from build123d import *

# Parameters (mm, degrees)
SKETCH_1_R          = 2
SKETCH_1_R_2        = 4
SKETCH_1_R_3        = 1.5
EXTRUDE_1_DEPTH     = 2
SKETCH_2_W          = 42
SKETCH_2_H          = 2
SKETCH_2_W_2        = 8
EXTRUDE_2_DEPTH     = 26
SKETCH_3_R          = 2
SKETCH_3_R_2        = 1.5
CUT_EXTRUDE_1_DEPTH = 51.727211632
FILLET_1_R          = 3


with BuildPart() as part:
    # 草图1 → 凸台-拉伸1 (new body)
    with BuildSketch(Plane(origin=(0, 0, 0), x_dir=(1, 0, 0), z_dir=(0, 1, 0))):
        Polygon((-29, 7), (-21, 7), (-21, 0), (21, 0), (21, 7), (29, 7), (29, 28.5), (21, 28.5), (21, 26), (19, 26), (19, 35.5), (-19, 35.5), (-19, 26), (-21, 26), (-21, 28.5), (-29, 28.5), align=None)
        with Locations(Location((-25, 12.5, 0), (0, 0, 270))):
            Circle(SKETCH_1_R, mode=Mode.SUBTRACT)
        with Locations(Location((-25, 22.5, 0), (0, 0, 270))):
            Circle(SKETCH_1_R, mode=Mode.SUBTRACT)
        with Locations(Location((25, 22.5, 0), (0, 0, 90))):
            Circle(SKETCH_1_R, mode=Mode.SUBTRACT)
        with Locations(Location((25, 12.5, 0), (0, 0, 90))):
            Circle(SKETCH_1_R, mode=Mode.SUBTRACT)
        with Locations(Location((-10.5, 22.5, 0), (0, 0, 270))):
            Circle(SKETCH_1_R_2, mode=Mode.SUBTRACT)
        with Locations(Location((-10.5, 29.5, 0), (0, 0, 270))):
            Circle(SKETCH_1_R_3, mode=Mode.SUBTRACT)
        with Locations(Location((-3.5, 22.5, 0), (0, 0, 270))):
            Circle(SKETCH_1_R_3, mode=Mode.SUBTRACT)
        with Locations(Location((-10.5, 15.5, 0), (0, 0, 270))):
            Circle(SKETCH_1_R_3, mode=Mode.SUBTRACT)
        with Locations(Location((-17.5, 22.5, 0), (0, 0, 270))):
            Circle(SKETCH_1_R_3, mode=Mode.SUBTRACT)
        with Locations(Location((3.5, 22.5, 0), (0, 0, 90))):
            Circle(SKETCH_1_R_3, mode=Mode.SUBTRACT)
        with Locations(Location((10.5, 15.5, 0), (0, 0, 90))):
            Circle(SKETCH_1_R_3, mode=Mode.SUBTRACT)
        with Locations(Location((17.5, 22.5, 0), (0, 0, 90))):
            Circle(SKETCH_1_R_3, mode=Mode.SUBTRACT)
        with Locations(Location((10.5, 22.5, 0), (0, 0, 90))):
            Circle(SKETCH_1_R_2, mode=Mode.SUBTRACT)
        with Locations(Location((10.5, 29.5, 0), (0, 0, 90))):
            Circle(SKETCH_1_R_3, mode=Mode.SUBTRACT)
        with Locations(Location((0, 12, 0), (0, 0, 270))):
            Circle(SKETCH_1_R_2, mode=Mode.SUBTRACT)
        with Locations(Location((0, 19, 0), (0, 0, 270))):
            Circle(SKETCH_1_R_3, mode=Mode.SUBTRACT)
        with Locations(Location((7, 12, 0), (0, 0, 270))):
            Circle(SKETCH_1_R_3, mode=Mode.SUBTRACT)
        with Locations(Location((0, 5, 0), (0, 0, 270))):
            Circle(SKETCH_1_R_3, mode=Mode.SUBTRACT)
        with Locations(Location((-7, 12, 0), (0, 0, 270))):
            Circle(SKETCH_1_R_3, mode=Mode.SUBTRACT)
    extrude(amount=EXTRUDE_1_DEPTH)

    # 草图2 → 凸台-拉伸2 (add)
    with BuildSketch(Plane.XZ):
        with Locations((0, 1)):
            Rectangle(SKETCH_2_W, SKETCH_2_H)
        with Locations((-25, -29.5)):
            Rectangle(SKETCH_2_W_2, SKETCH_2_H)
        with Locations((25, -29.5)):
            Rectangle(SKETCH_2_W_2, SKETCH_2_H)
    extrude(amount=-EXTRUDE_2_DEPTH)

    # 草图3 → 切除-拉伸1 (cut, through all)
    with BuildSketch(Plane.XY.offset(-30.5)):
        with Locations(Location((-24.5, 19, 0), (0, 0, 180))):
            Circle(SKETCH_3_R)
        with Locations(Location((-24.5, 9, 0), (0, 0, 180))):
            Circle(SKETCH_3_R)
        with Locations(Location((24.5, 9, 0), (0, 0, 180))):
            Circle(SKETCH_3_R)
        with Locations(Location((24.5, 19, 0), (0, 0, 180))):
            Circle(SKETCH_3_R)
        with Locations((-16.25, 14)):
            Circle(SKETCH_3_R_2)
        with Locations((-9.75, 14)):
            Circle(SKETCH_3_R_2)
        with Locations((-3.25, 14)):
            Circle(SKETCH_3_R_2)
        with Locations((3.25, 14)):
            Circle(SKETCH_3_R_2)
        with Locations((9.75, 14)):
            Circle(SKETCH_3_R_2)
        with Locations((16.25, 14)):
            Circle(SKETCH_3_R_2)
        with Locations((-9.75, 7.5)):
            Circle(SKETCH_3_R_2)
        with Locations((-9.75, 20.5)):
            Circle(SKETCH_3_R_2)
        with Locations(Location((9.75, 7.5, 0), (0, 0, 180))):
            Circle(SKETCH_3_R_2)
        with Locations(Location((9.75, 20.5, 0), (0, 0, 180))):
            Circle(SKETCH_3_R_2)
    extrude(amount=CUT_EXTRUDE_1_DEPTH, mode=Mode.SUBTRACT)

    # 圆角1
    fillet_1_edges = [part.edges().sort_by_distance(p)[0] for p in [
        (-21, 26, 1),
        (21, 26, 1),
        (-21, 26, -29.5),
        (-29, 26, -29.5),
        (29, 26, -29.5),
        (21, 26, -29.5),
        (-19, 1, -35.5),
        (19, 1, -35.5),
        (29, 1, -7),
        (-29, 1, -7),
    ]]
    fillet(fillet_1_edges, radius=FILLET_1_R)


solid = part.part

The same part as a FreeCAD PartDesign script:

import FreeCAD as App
import Part
import Sketcher
from FreeCAD import Vector


def edges_at(feature, points):
    """Names of the edges that pass closest to the given points."""
    edges = feature.Shape.Edges
    near = lambda p: min(range(len(edges)), key=lambda i: edges[i].distToShape(Part.Vertex(*p))[0])
    return sorted({f"Edge{near(p) + 1}" for p in points})

doc = App.newDocument("Part")
body = doc.addObject("PartDesign::Body", "Body")

sketch1 = body.newObject("Sketcher::SketchObject", "Sketch")
sketch1.AttachmentSupport = (doc.getObject("XZ_Plane"), [""])
sketch1.MapMode = "FlatFace"
sketch1.addGeometry(Part.LineSegment(Vector(-29, -7, 0), Vector(-21, -7, 0)), False)
sketch1.addGeometry(Part.LineSegment(Vector(-21, -7, 0), Vector(-21, 0, 0)), False)
sketch1.addGeometry(Part.LineSegment(Vector(-21, 0, 0), Vector(21, 0, 0)), False)
sketch1.addGeometry(Part.LineSegment(Vector(21, 0, 0), Vector(21, -7, 0)), False)
sketch1.addGeometry(Part.LineSegment(Vector(21, -7, 0), Vector(29, -7, 0)), False)
sketch1.addGeometry(Part.LineSegment(Vector(29, -7, 0), Vector(29, -28.5, 0)), False)
sketch1.addGeometry(Part.LineSegment(Vector(29, -28.5, 0), Vector(21, -28.5, 0)), False)
sketch1.addGeometry(Part.LineSegment(Vector(21, -28.5, 0), Vector(21, -26, 0)), False)
sketch1.addGeometry(Part.LineSegment(Vector(21, -26, 0), Vector(19, -26, 0)), False)
sketch1.addGeometry(Part.LineSegment(Vector(19, -26, 0), Vector(19, -35.5, 0)), False)
sketch1.addGeometry(Part.LineSegment(Vector(19, -35.5, 0), Vector(-19, -35.5, 0)), False)
sketch1.addGeometry(Part.LineSegment(Vector(-19, -35.5, 0), Vector(-19, -26, 0)), False)
sketch1.addGeometry(Part.LineSegment(Vector(-19, -26, 0), Vector(-21, -26, 0)), False)
sketch1.addGeometry(Part.LineSegment(Vector(-21, -26, 0), Vector(-21, -28.5, 0)), False)
sketch1.addGeometry(Part.LineSegment(Vector(-21, -28.5, 0), Vector(-29, -28.5, 0)), False)
sketch1.addGeometry(Part.LineSegment(Vector(-29, -28.5, 0), Vector(-29, -7, 0)), False)
sketch1.addGeometry(Part.Circle(Vector(-25, -12.5, 0), Vector(0, 0, 1), 2), False)
sketch1.addGeometry(Part.Circle(Vector(-7, -12, 0), Vector(0, 0, 1), 1.5), False)
sketch1.addGeometry(Part.Circle(Vector(-10.5, -15.5, 0), Vector(0, 0, 1), 1.5), False)
sketch1.addGeometry(Part.Circle(Vector(0, -5, 0), Vector(0, 0, 1), 1.5), False)
sketch1.addGeometry(Part.Circle(Vector(0, -12, 0), Vector(0, 0, 1), 4), False)
sketch1.addGeometry(Part.Circle(Vector(7, -12, 0), Vector(0, 0, 1), 1.5), False)
sketch1.addGeometry(Part.Circle(Vector(10.5, -15.5, 0), Vector(0, 0, 1), 1.5), False)
sketch1.addGeometry(Part.Circle(Vector(25, -12.5, 0), Vector(0, 0, 1), 2), False)
sketch1.addGeometry(Part.Circle(Vector(-25, -22.5, 0), Vector(0, 0, 1), 2), False)
sketch1.addGeometry(Part.Circle(Vector(-17.5, -22.5, 0), Vector(0, 0, 1), 1.5), False)
sketch1.addGeometry(Part.Circle(Vector(-10.5, -22.5, 0), Vector(0, 0, 1), 4), False)
sketch1.addGeometry(Part.Circle(Vector(-3.5, -22.5, 0), Vector(0, 0, 1), 1.5), False)
sketch1.addGeometry(Part.Circle(Vector(-10.5, -29.5, 0), Vector(0, 0, 1), 1.5), False)
sketch1.addGeometry(Part.Circle(Vector(0, -19, 0), Vector(0, 0, 1), 1.5), False)
sketch1.addGeometry(Part.Circle(Vector(3.5, -22.5, 0), Vector(0, 0, 1), 1.5), False)
sketch1.addGeometry(Part.Circle(Vector(10.5, -22.5, 0), Vector(0, 0, 1), 4), False)
sketch1.addGeometry(Part.Circle(Vector(17.5, -22.5, 0), Vector(0, 0, 1), 1.5), False)
sketch1.addGeometry(Part.Circle(Vector(25, -22.5, 0), Vector(0, 0, 1), 2), False)
sketch1.addGeometry(Part.Circle(Vector(10.5, -29.5, 0), Vector(0, 0, 1), 1.5), False)
sketch1.addConstraint(Sketcher.Constraint("Coincident", 0, 2, 1, 1))
sketch1.addConstraint(Sketcher.Constraint("Coincident", 1, 2, 2, 1))
sketch1.addConstraint(Sketcher.Constraint("Coincident", 2, 2, 3, 1))
sketch1.addConstraint(Sketcher.Constraint("Coincident", 3, 2, 4, 1))
sketch1.addConstraint(Sketcher.Constraint("Coincident", 4, 2, 5, 1))
sketch1.addConstraint(Sketcher.Constraint("Coincident", 5, 2, 6, 1))
sketch1.addConstraint(Sketcher.Constraint("Coincident", 6, 2, 7, 1))
sketch1.addConstraint(Sketcher.Constraint("Coincident", 7, 2, 8, 1))
sketch1.addConstraint(Sketcher.Constraint("Coincident", 8, 2, 9, 1))
sketch1.addConstraint(Sketcher.Constraint("Coincident", 9, 2, 10, 1))
sketch1.addConstraint(Sketcher.Constraint("Coincident", 10, 2, 11, 1))
sketch1.addConstraint(Sketcher.Constraint("Coincident", 11, 2, 12, 1))
sketch1.addConstraint(Sketcher.Constraint("Coincident", 12, 2, 13, 1))
sketch1.addConstraint(Sketcher.Constraint("Coincident", 13, 2, 14, 1))
sketch1.addConstraint(Sketcher.Constraint("Coincident", 14, 2, 15, 1))
sketch1.addConstraint(Sketcher.Constraint("Coincident", 15, 2, 0, 1))
sketch1.addConstraint(Sketcher.Constraint("Horizontal", 0))
sketch1.addConstraint(Sketcher.Constraint("Vertical", 1))
sketch1.addConstraint(Sketcher.Constraint("Horizontal", 2))
sketch1.addConstraint(Sketcher.Constraint("Vertical", 3))
sketch1.addConstraint(Sketcher.Constraint("Horizontal", 4))
sketch1.addConstraint(Sketcher.Constraint("Vertical", 5))
sketch1.addConstraint(Sketcher.Constraint("Horizontal", 6))
sketch1.addConstraint(Sketcher.Constraint("Vertical", 7))
sketch1.addConstraint(Sketcher.Constraint("Horizontal", 8))
sketch1.addConstraint(Sketcher.Constraint("Vertical", 9))
sketch1.addConstraint(Sketcher.Constraint("Horizontal", 10))
sketch1.addConstraint(Sketcher.Constraint("Vertical", 11))
sketch1.addConstraint(Sketcher.Constraint("Horizontal", 12))
sketch1.addConstraint(Sketcher.Constraint("Vertical", 13))
sketch1.addConstraint(Sketcher.Constraint("Horizontal", 14))
sketch1.addConstraint(Sketcher.Constraint("Vertical", 15))
sketch1.addConstraint(Sketcher.Constraint("Equal", 17, 18))
sketch1.addConstraint(Sketcher.Constraint("Equal", 18, 19))
sketch1.addConstraint(Sketcher.Constraint("Equal", 19, 21))
sketch1.addConstraint(Sketcher.Constraint("Equal", 21, 22))
sketch1.addConstraint(Sketcher.Constraint("Equal", 16, 23))
sketch1.addConstraint(Sketcher.Constraint("Equal", 23, 24))
sketch1.addConstraint(Sketcher.Constraint("Equal", 22, 25))
sketch1.addConstraint(Sketcher.Constraint("Equal", 20, 26))
sketch1.addConstraint(Sketcher.Constraint("Equal", 25, 27))
sketch1.addConstraint(Sketcher.Constraint("Equal", 27, 28))
sketch1.addConstraint(Sketcher.Constraint("Equal", 28, 29))
sketch1.addConstraint(Sketcher.Constraint("Equal", 29, 30))
sketch1.addConstraint(Sketcher.Constraint("Equal", 26, 31))
sketch1.addConstraint(Sketcher.Constraint("Equal", 30, 32))
sketch1.addConstraint(Sketcher.Constraint("Equal", 24, 33))
sketch1.addConstraint(Sketcher.Constraint("Equal", 32, 34))
sketch1.addConstraint(Sketcher.Constraint("Symmetric", 1, 2, 2, 2, -1, 1))
sketch1.addConstraint(Sketcher.Constraint("Symmetric", 17, 3, 21, 3, -2))
sketch1.addConstraint(Sketcher.Constraint("Symmetric", 18, 3, 22, 3, -2))
sketch1.addConstraint(Sketcher.Constraint("Symmetric", 16, 3, 23, 3, -2))
sketch1.addConstraint(Sketcher.Constraint("Symmetric", 27, 3, 30, 3, -2))
sketch1.addConstraint(Sketcher.Constraint("Symmetric", 26, 3, 31, 3, -2))
sketch1.addConstraint(Sketcher.Constraint("Symmetric", 25, 3, 32, 3, -2))
sketch1.addConstraint(Sketcher.Constraint("Symmetric", 24, 3, 33, 3, -2))
sketch1.addConstraint(Sketcher.Constraint("Symmetric", 28, 3, 34, 3, -2))
sketch1.addConstraint(Sketcher.Constraint("Symmetric", 8, 2, 11, 2, -2))
sketch1.addConstraint(Sketcher.Constraint("Symmetric", 6, 2, 13, 2, -2))
sketch1.addConstraint(Sketcher.Constraint("Symmetric", 4, 2, 15, 2, -2))
sketch1.addConstraint(Sketcher.Constraint("PointOnObject", 19, 3, -2))
sketch1.addConstraint(Sketcher.Constraint("PointOnObject", 20, 3, -2))
sketch1.addConstraint(Sketcher.Constraint("PointOnObject", 29, 3, -2))
sketch1.addConstraint(Sketcher.Constraint("Horizontal", 17, 3, 20, 3))
sketch1.addConstraint(Sketcher.Constraint("Horizontal", 24, 3, 25, 3))
sketch1.addConstraint(Sketcher.Constraint("Horizontal", 25, 3, 26, 3))
sketch1.addConstraint(Sketcher.Constraint("Horizontal", 26, 3, 27, 3))
sketch1.addConstraint(Sketcher.Constraint("Vertical", 16, 3, 24, 3))
sketch1.addConstraint(Sketcher.Constraint("Vertical", 18, 3, 26, 3))
sketch1.addConstraint(Sketcher.Constraint("Vertical", 26, 3, 28, 3))
sketch1.addConstraint(Sketcher.Constraint("Vertical", 3, 2, 6, 2))
sketch1.addConstraint(Sketcher.Constraint("Diameter", 16, 4.0))
sketch1.addConstraint(Sketcher.Constraint("Diameter", 17, 3.0))
sketch1.addConstraint(Sketcher.Constraint("Diameter", 20, 8.0))
sketch1.addConstraint(Sketcher.Constraint("DistanceX", 0, 1, 0, 2, 8.0))
sketch1.addConstraint(Sketcher.Constraint("DistanceX", 2, 1, 2, 2, 42.0))
sketch1.addConstraint(Sketcher.Constraint("DistanceX", 8, 2, 8, 1, 2.0))
sketch1.addConstraint(Sketcher.Constraint("DistanceY", 1, 1, 1, 2, 7.0))
sketch1.addConstraint(Sketcher.Constraint("DistanceY", 5, 2, 5, 1, 21.5))
sketch1.addConstraint(Sketcher.Constraint("DistanceY", 7, 1, 7, 2, 2.5))
sketch1.addConstraint(Sketcher.Constraint("DistanceY", 9, 2, 9, 1, 9.5))
sketch1.addConstraint(Sketcher.Constraint("DistanceX", 16, 3, -1, 1, 25.0))
sketch1.addConstraint(Sketcher.Constraint("DistanceX", 17, 3, -1, 1, 7.0))
sketch1.addConstraint(Sketcher.Constraint("DistanceY", 17, 3, -1, 1, 12.0))
sketch1.addConstraint(Sketcher.Constraint("DistanceY", 19, 3, -1, 1, 5.0))
sketch1.addConstraint(Sketcher.Constraint("DistanceY", 29, 3, -1, 1, 19.0))
sketch1.addConstraint(Sketcher.Constraint("DistanceY", 18, 3, 16, 3, 3.0))
sketch1.addConstraint(Sketcher.Constraint("DistanceX", 18, 3, 22, 3, 21.0))
sketch1.addConstraint(Sketcher.Constraint("DistanceY", 24, 3, 16, 3, 10.0))
sketch1.addConstraint(Sketcher.Constraint("DistanceX", 25, 3, 18, 3, 7.0))
sketch1.addConstraint(Sketcher.Constraint("DistanceX", 26, 3, 27, 3, 7.0))
sketch1.addConstraint(Sketcher.Constraint("DistanceY", 28, 3, 26, 3, 7.0))
sketch1.addConstraint(Sketcher.Constraint("DistanceY", 5, 2, 33, 3, 6.0))
pad1 = body.newObject("PartDesign::Pad", "Pad")
pad1.Profile = sketch1
pad1.Length = 2
pad1.Reversed = True

sketch2 = body.newObject("Sketcher::SketchObject", "Sketch001")
sketch2.AttachmentSupport = (doc.getObject("XZ_Plane"), [""])
sketch2.MapMode = "FlatFace"
sketch2.addGeometry(Part.LineSegment(Vector(-21, 2, 0), Vector(-21, 0, 0)), False)
sketch2.addGeometry(Part.LineSegment(Vector(-21, 0, 0), Vector(21, 0, 0)), False)
sketch2.addGeometry(Part.LineSegment(Vector(21, 0, 0), Vector(21, 2, 0)), False)
sketch2.addGeometry(Part.LineSegment(Vector(21, 2, 0), Vector(-21, 2, 0)), False)
sketch2.addGeometry(Part.LineSegment(Vector(-29, -28.5, 0), Vector(-29, -30.5, 0)), False)
sketch2.addGeometry(Part.LineSegment(Vector(-29, -30.5, 0), Vector(-21, -30.5, 0)), False)
sketch2.addGeometry(Part.LineSegment(Vector(-21, -30.5, 0), Vector(-21, -28.5, 0)), False)
sketch2.addGeometry(Part.LineSegment(Vector(-21, -28.5, 0), Vector(-29, -28.5, 0)), False)
sketch2.addGeometry(Part.LineSegment(Vector(21, -28.5, 0), Vector(21, -30.5, 0)), False)
sketch2.addGeometry(Part.LineSegment(Vector(21, -30.5, 0), Vector(29, -30.5, 0)), False)
sketch2.addGeometry(Part.LineSegment(Vector(29, -30.5, 0), Vector(29, -28.5, 0)), False)
sketch2.addGeometry(Part.LineSegment(Vector(29, -28.5, 0), Vector(21, -28.5, 0)), False)
sketch2.addConstraint(Sketcher.Constraint("Coincident", 0, 2, 1, 1))
sketch2.addConstraint(Sketcher.Constraint("Coincident", 1, 2, 2, 1))
sketch2.addConstraint(Sketcher.Constraint("Coincident", 2, 2, 3, 1))
sketch2.addConstraint(Sketcher.Constraint("Coincident", 3, 2, 0, 1))
sketch2.addConstraint(Sketcher.Constraint("Coincident", 4, 2, 5, 1))
sketch2.addConstraint(Sketcher.Constraint("Coincident", 5, 2, 6, 1))
sketch2.addConstraint(Sketcher.Constraint("Coincident", 6, 2, 7, 1))
sketch2.addConstraint(Sketcher.Constraint("Coincident", 7, 2, 4, 1))
sketch2.addConstraint(Sketcher.Constraint("Coincident", 8, 2, 9, 1))
sketch2.addConstraint(Sketcher.Constraint("Coincident", 9, 2, 10, 1))
sketch2.addConstraint(Sketcher.Constraint("Coincident", 10, 2, 11, 1))
sketch2.addConstraint(Sketcher.Constraint("Coincident", 11, 2, 8, 1))
sketch2.addConstraint(Sketcher.Constraint("Vertical", 0))
sketch2.addConstraint(Sketcher.Constraint("Horizontal", 1))
sketch2.addConstraint(Sketcher.Constraint("Vertical", 2))
sketch2.addConstraint(Sketcher.Constraint("Horizontal", 3))
sketch2.addConstraint(Sketcher.Constraint("Vertical", 4))
sketch2.addConstraint(Sketcher.Constraint("Horizontal", 5))
sketch2.addConstraint(Sketcher.Constraint("Vertical", 6))
sketch2.addConstraint(Sketcher.Constraint("Horizontal", 7))
sketch2.addConstraint(Sketcher.Constraint("Vertical", 8))
sketch2.addConstraint(Sketcher.Constraint("Horizontal", 9))
sketch2.addConstraint(Sketcher.Constraint("Vertical", 10))
sketch2.addConstraint(Sketcher.Constraint("Horizontal", 11))
sketch2.addConstraint(Sketcher.Constraint("Symmetric", 0, 2, 1, 2, -1, 1))
sketch2.addConstraint(Sketcher.Constraint("Symmetric", 5, 2, 8, 2, -2))
sketch2.addConstraint(Sketcher.Constraint("Symmetric", 7, 2, 10, 2, -2))
sketch2.addConstraint(Sketcher.Constraint("Vertical", 3, 2, 5, 2))
sketch2.addConstraint(Sketcher.Constraint("Equal", 2, 4))
sketch2.addConstraint(Sketcher.Constraint("DistanceX", 1, 1, 1, 2, 42.0))
sketch2.addConstraint(Sketcher.Constraint("DistanceX", 5, 1, 5, 2, 8.0))
sketch2.addConstraint(Sketcher.Constraint("DistanceY", 0, 2, 0, 1, 2.0))
sketch2.addConstraint(Sketcher.Constraint("DistanceY", 4, 2, -1, 1, 30.5))
pad2 = body.newObject("PartDesign::Pad", "Pad001")
pad2.Profile = sketch2
pad2.Length = 26
pad2.Reversed = True

sketch3 = body.newObject("Sketcher::SketchObject", "Sketch002")
sketch3.AttachmentSupport = (doc.getObject("XY_Plane"), [""])
sketch3.MapMode = "FlatFace"
sketch3.AttachmentOffset = App.Placement(Vector(0, 0, -30.5), App.Rotation())
sketch3.addGeometry(Part.Circle(Vector(-24.5, 19, 0), Vector(0, 0, 1), 2), False)
sketch3.addGeometry(Part.Circle(Vector(-24.5, 9, 0), Vector(0, 0, 1), 2), False)
sketch3.addGeometry(Part.Circle(Vector(24.5, 9, 0), Vector(0, 0, 1), 2), False)
sketch3.addGeometry(Part.Circle(Vector(24.5, 19, 0), Vector(0, 0, 1), 2), False)
sketch3.addGeometry(Part.Circle(Vector(-16.25, 14, 0), Vector(0, 0, 1), 1.5), False)
sketch3.addGeometry(Part.Circle(Vector(-9.75, 14, 0), Vector(0, 0, 1), 1.5), False)
sketch3.addGeometry(Part.Circle(Vector(-3.25, 14, 0), Vector(0, 0, 1), 1.5), False)
sketch3.addGeometry(Part.Circle(Vector(3.25, 14, 0), Vector(0, 0, 1), 1.5), False)
sketch3.addGeometry(Part.Circle(Vector(9.75, 14, 0), Vector(0, 0, 1), 1.5), False)
sketch3.addGeometry(Part.Circle(Vector(16.25, 14, 0), Vector(0, 0, 1), 1.5), False)
sketch3.addGeometry(Part.Circle(Vector(-9.75, 7.5, 0), Vector(0, 0, 1), 1.5), False)
sketch3.addGeometry(Part.Circle(Vector(-9.75, 20.5, 0), Vector(0, 0, 1), 1.5), False)
sketch3.addGeometry(Part.Circle(Vector(9.75, 7.5, 0), Vector(0, 0, 1), 1.5), False)
sketch3.addGeometry(Part.Circle(Vector(9.75, 20.5, 0), Vector(0, 0, 1), 1.5), False)
sketch3.addConstraint(Sketcher.Constraint("Equal", 0, 1))
sketch3.addConstraint(Sketcher.Constraint("Equal", 1, 2))
sketch3.addConstraint(Sketcher.Constraint("Equal", 2, 3))
sketch3.addConstraint(Sketcher.Constraint("Equal", 4, 5))
sketch3.addConstraint(Sketcher.Constraint("Equal", 5, 6))
sketch3.addConstraint(Sketcher.Constraint("Equal", 6, 7))
sketch3.addConstraint(Sketcher.Constraint("Equal", 7, 8))
sketch3.addConstraint(Sketcher.Constraint("Equal", 8, 9))
sketch3.addConstraint(Sketcher.Constraint("Equal", 9, 10))
sketch3.addConstraint(Sketcher.Constraint("Equal", 10, 11))
sketch3.addConstraint(Sketcher.Constraint("Equal", 11, 12))
sketch3.addConstraint(Sketcher.Constraint("Equal", 12, 13))
sketch3.addConstraint(Sketcher.Constraint("Symmetric", 1, 3, 2, 3, -2))
sketch3.addConstraint(Sketcher.Constraint("Symmetric", 0, 3, 3, 3, -2))
sketch3.addConstraint(Sketcher.Constraint("Symmetric", 6, 3, 7, 3, -2))
sketch3.addConstraint(Sketcher.Constraint("Symmetric", 5, 3, 8, 3, -2))
sketch3.addConstraint(Sketcher.Constraint("Symmetric", 4, 3, 9, 3, -2))
sketch3.addConstraint(Sketcher.Constraint("Symmetric", 10, 3, 12, 3, -2))
sketch3.addConstraint(Sketcher.Constraint("Symmetric", 11, 3, 13, 3, -2))
sketch3.addConstraint(Sketcher.Constraint("Horizontal", 4, 3, 5, 3))
sketch3.addConstraint(Sketcher.Constraint("Horizontal", 5, 3, 6, 3))
sketch3.addConstraint(Sketcher.Constraint("Vertical", 0, 3, 1, 3))
sketch3.addConstraint(Sketcher.Constraint("Vertical", 5, 3, 10, 3))
sketch3.addConstraint(Sketcher.Constraint("Vertical", 10, 3, 11, 3))
sketch3.addConstraint(Sketcher.Constraint("Diameter", 0, 4.0))
sketch3.addConstraint(Sketcher.Constraint("Diameter", 4, 3.0))
sketch3.addConstraint(Sketcher.Constraint("DistanceY", -1, 1, 0, 3, 19.0))
sketch3.addConstraint(Sketcher.Constraint("DistanceY", -1, 1, 1, 3, 9.0))
sketch3.addConstraint(Sketcher.Constraint("DistanceY", -1, 1, 4, 3, 14.0))
sketch3.addConstraint(Sketcher.Constraint("DistanceX", 1, 3, 2, 3, 49.0))
sketch3.addConstraint(Sketcher.Constraint("DistanceX", 4, 3, 6, 3, 13.0))
sketch3.addConstraint(Sketcher.Constraint("DistanceX", 5, 3, 7, 3, 13.0))
sketch3.addConstraint(Sketcher.Constraint("DistanceY", 10, 3, 11, 3, 13.0))
sketch3.addConstraint(Sketcher.Constraint("DistanceY", -1, 1, 10, 3, 7.5))
sketch3.addConstraint(Sketcher.Constraint("DistanceX", 4, 3, 5, 3, 6.5))
pocket1 = body.newObject("PartDesign::Pocket", "Pocket")
pocket1.Profile = sketch3
pocket1.Type = "ThroughAll"
pocket1.Reversed = True
doc.recompute()

fillet = body.newObject("PartDesign::Fillet", "Fillet")
fillet.Base = (pocket1, edges_at(pocket1, [
    (-21, 26, 1),
    (21, 26, 1),
    (-21, 26, -29.5),
    (-29, 26, -29.5),
    (29, 26, -29.5),
    (21, 26, -29.5),
    (-19, 1, -35.5),
    (19, 1, -35.5),
    (29, 1, -7),
    (-29, 1, -7),
]))
fillet.Radius = 3

doc.recompute()
